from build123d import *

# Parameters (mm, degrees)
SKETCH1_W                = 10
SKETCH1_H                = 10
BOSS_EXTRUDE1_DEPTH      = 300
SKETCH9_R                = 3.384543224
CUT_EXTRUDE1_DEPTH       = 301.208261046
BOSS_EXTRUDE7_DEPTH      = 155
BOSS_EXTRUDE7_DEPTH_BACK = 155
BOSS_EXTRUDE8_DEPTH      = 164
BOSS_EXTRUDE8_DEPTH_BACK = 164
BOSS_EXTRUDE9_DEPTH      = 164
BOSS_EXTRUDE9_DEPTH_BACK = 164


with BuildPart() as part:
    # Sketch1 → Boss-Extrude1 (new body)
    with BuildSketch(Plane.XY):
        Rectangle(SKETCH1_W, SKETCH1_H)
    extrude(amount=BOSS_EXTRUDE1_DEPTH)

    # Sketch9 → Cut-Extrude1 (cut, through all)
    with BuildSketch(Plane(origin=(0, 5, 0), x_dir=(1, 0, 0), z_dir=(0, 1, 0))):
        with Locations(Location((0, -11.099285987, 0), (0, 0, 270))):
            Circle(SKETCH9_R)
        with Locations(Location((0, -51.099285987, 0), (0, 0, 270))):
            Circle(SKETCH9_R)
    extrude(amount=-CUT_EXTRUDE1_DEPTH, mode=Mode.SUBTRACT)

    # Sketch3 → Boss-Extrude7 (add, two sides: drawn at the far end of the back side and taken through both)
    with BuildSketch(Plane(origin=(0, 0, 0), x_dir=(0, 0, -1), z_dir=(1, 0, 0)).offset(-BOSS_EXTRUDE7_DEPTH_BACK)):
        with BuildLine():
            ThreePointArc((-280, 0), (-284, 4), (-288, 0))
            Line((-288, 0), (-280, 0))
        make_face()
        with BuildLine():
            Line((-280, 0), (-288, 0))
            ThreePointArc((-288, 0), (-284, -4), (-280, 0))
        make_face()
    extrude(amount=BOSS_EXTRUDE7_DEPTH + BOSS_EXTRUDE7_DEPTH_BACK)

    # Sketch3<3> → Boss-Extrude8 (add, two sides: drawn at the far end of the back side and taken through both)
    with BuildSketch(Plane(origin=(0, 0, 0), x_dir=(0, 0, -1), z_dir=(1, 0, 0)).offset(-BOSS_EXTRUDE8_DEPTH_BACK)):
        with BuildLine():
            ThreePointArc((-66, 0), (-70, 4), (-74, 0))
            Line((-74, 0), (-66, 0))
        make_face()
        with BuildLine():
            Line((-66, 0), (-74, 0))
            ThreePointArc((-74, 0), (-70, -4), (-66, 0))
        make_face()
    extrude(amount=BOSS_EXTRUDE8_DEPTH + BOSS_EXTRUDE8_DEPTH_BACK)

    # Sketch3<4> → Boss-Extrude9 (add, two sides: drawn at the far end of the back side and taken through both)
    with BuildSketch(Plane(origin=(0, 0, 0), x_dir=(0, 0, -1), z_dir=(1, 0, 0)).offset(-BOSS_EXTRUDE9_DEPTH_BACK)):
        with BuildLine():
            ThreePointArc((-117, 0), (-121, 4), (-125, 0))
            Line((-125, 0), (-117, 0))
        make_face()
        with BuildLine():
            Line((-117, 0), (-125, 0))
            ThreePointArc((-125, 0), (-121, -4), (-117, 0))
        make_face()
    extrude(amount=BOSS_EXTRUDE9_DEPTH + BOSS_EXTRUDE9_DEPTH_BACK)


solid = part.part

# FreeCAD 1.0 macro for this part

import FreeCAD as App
import Part
import Sketcher
from FreeCAD import Vector
Q = App.Units.Quantity


def add_polygon(sketch, points):
    """Adds a closed chain of lines whose ends are joined by coincident constraints."""
    first, n = sketch.GeometryCount, len(points)
    for a, b in zip(points, points[1:] + points[:1]):
        sketch.addGeometry(Part.LineSegment(App.Vector(*a, 0), App.Vector(*b, 0)), False)
    for i in range(n):
        sketch.addConstraint(Sketcher.Constraint("Coincident", first + i, 2, first + (i + 1) % n, 1))

doc = App.newDocument("Part")
body = doc.addObject("PartDesign::Body", "Body")

# Sketch on XY plane
sketch1 = body.newObject("Sketcher::SketchObject", "Sketch")
sketch1.AttachmentSupport = (doc.getObject("XY_Plane"), [""])
sketch1.MapMode = "FlatFace"
add_polygon(sketch1, [(-5, 5), (-5, -5), (5, -5), (5, 5)])  # lines 0-3
sketch1.addConstraint(Sketcher.Constraint("Vertical", 0))
sketch1.addConstraint(Sketcher.Constraint("Horizontal", 1))
sketch1.addConstraint(Sketcher.Constraint("Vertical", 2))
sketch1.addConstraint(Sketcher.Constraint("Horizontal", 3))
sketch1.addConstraint(Sketcher.Constraint("Symmetric", 0, 2, 2, 2, -1, 1))
sketch1.addConstraint(Sketcher.Constraint("Equal", 3, 0))
sketch1.addConstraint(Sketcher.Constraint("DistanceX", 1, 1, 1, 2, Q("10 mm")))
pad1 = body.newObject("PartDesign::Pad", "Pad")
pad1.Profile = sketch1
pad1.Length = 300

# Sketch on XZ plane
sketch2 = body.newObject("Sketcher::SketchObject", "Sketch001")
sketch2.AttachmentSupport = (doc.getObject("XZ_Plane"), [""])
sketch2.MapMode = "FlatFace"
sketch2.AttachmentOffset = App.Placement(Vector(0, 0, -5), App.Rotation())
sketch2.addGeometry(Part.Circle(Vector(0, 11.1, 0), Vector(0, 0, 1), 3.4), False)
sketch2.addGeometry(Part.Circle(Vector(0, 51.1, 0), Vector(0, 0, 1), 3.4), False)
sketch2.addConstraint(Sketcher.Constraint("Equal", 0, 1))
sketch2.addConstraint(Sketcher.Constraint("PointOnObject", 0, 3, -2))
sketch2.addConstraint(Sketcher.Constraint("PointOnObject", 1, 3, -2))
sketch2.addConstraint(Sketcher.Constraint("DistanceY", 0, 3, 1, 3, Q("40 mm")))
sketch2.addConstraint(Sketcher.Constraint("Diameter", 0, Q("6.769086 mm")))
sketch2.addConstraint(Sketcher.Constraint("DistanceY", -1, 1, 0, 3, Q("11.099286 mm")))
pocket1 = body.newObject("PartDesign::Pocket", "Pocket")
pocket1.Profile = sketch2
pocket1.Type = "ThroughAll"
pocket1.Reversed = True

# Sketch on YZ plane
sketch3 = body.newObject("Sketcher::SketchObject", "Sketch002")
sketch3.AttachmentSupport = (doc.getObject("YZ_Plane"), [""])
sketch3.MapMode = "FlatFace"
sketch3.addGeometry(Part.Circle(Vector(0, 284, 0), Vector(0, 0, 1), 4), False)
sketch3.addConstraint(Sketcher.Constraint("PointOnObject", 0, 3, -2))
sketch3.addConstraint(Sketcher.Constraint("Diameter", 0, Q("8 mm")))
sketch3.addConstraint(Sketcher.Constraint("DistanceY", -1, 1, 0, 3, Q("284 mm")))
pad2 = body.newObject("PartDesign::Pad", "Pad001")
pad2.Profile = sketch3
pad2.Type = "TwoLengths"
pad2.Length = 155
pad2.Length2 = 155

# Sketch on YZ plane
sketch4 = body.newObject("Sketcher::SketchObject", "Sketch003")
sketch4.AttachmentSupport = (doc.getObject("YZ_Plane"), [""])
sketch4.MapMode = "FlatFace"
sketch4.addGeometry(Part.Circle(Vector(0, 70, 0), Vector(0, 0, 1), 4), False)
sketch4.addConstraint(Sketcher.Constraint("PointOnObject", 0, 3, -2))
sketch4.addConstraint(Sketcher.Constraint("Diameter", 0, Q("8 mm")))
sketch4.addConstraint(Sketcher.Constraint("DistanceY", -1, 1, 0, 3, Q("70 mm")))
pad3 = body.newObject("PartDesign::Pad", "Pad002")
pad3.Profile = sketch4
pad3.Type = "TwoLengths"
pad3.Length = 164
pad3.Length2 = 164

# Sketch on YZ plane
sketch5 = body.newObject("Sketcher::SketchObject", "Sketch004")
sketch5.AttachmentSupport = (doc.getObject("YZ_Plane"), [""])
sketch5.MapMode = "FlatFace"
sketch5.addGeometry(Part.Circle(Vector(0, 121, 0), Vector(0, 0, 1), 4), False)
sketch5.addConstraint(Sketcher.Constraint("PointOnObject", 0, 3, -2))
sketch5.addConstraint(Sketcher.Constraint("Diameter", 0, Q("8 mm")))
sketch5.addConstraint(Sketcher.Constraint("DistanceY", -1, 1, 0, 3, Q("121 mm")))
pad4 = body.newObject("PartDesign::Pad", "Pad003")
pad4.Profile = sketch5
pad4.Type = "TwoLengths"
pad4.Length = 164
pad4.Length2 = 164

doc.recompute()
